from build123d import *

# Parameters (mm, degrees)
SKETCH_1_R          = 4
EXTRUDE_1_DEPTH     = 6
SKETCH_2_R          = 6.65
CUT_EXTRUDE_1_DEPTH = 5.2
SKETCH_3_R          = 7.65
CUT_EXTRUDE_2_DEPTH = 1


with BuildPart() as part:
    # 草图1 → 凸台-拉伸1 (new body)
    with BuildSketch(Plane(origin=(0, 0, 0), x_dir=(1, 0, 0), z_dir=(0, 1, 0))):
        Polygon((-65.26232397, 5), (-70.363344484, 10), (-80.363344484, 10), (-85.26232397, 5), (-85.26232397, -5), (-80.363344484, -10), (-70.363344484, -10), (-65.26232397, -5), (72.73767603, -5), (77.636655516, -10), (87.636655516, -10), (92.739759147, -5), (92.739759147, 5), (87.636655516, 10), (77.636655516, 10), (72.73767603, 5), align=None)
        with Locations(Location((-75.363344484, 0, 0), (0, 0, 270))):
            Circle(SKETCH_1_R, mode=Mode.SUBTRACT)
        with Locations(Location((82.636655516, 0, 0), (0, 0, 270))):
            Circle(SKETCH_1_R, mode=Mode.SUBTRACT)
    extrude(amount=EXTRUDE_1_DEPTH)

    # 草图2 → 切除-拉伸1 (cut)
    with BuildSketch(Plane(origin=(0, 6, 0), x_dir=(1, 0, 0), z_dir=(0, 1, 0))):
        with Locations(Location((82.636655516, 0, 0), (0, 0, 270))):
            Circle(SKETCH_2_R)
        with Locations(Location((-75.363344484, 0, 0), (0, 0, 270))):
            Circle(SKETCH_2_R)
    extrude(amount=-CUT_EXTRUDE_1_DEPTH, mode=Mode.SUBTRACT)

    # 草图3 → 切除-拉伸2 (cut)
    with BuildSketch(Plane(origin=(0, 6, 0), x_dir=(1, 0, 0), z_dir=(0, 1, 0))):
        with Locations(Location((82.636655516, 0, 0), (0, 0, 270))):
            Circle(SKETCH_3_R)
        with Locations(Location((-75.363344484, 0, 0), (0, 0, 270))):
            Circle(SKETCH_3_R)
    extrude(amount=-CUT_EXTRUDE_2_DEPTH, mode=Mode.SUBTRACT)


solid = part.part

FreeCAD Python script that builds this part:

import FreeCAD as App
import Part
import Sketcher
Q = App.Units.Quantity


def add_polygon(sketch, points):
    """Adds a closed chain of lines whose ends are joined by coincident constraints."""
    first, n = sketch.GeometryCount, len(points)
    for a, b in zip(points, points[1:] + points[:1]):
        sketch.addGeometry(Part.LineSegment(App.Vector(*a, 0), App.Vector(*b, 0)), False)
    for i in range(n):
        sketch.addConstraint(Sketcher.Constraint("Coincident", first + i, 2, first + (i + 1) % n, 1))

doc = App.newDocument("Part")
body = doc.addObject("PartDesign::Body", "Body")

sketch1 = doc.addObject("Sketcher::SketchObject", "Sketch")
body.addObject(sketch1)
sketch1.AttachmentSupport = (doc.XZ_Plane, [""])
sketch1.MapMode = "FlatFace"
add_polygon(sketch1, [(-65.262324, -5), (-70.363344, -10), (-80.363344, -10), (-85.262324, -5), (-85.262324, 5), (-80.363344, 10), (-70.363344, 10), (-65.262324, 5), (72.737676, 5), (77.636656, 10), (87.636656, 10), (92.739759, 5), (92.739759, -5), (87.636656, -10), (77.636656, -10), (72.737676, -5)])
sketch1.addGeometry(Part.Circle(App.Vector(-75.363344, 0, 0), App.Vector(0, 0, 1), 4), False)
sketch1.addGeometry(Part.Circle(App.Vector(82.636656, 0, 0), App.Vector(0, 0, 1), 4), False)
sketch1.addConstraint([
    Sketcher.Constraint("Horizontal", 1),
    Sketcher.Constraint("Vertical", 3),
    Sketcher.Constraint("Horizontal", 5),
    Sketcher.Constraint("Horizontal", 7),
    Sketcher.Constraint("Horizontal", 9),
    Sketcher.Constraint("Vertical", 11),
    Sketcher.Constraint("Horizontal", 13),
    Sketcher.Constraint("Horizontal", 15),
    Sketcher.Constraint("Equal", 16, 17),
    Sketcher.Constraint("Symmetric", 1, 2, 4, 2, -1),
    Sketcher.Constraint("Symmetric", 9, 2, 12, 2, -1),
    Sketcher.Constraint("Symmetric", 7, 2, 14, 2, -1),
    Sketcher.Constraint("PointOnObject", 16, 3, -1),
    Sketcher.Constraint("PointOnObject", 17, 3, -1),
    Sketcher.Constraint("Parallel", 4, 8),
    Sketcher.Constraint("Perpendicular", 8, 10),
    Sketcher.Constraint("Perpendicular", 2, 12),
    Sketcher.Constraint("Perpendicular", 12, 14),
    Sketcher.Constraint("Horizontal", 3, 2, 6, 2),
    Sketcher.Constraint("Horizontal", 5, 2, 8, 2),
    Sketcher.Constraint("Horizontal", 7, 2, 10, 2),
    Sketcher.Constraint("Horizontal", 2, 2, 11, 2),
    Sketcher.Constraint("Vertical", 0, 2, 5, 2),
    Sketcher.Constraint("Vertical", 6, 2, 15, 2),
    Sketcher.Constraint("Equal", 5, 9),
    Sketcher.Constraint("Equal", 13, 3),
    Sketcher.Constraint("Diameter", 16, Q("8 mm")),
    Sketcher.Constraint("DistanceX", 1, 2, 1, 1, Q("10 mm")),
    Sketcher.Constraint("DistanceX", 7, 1, 7, 2, Q("138 mm")),
    Sketcher.Constraint("Distance", 2, Q("7 mm")),
    Sketcher.Constraint("DistanceY", 0, 2, -1, 1, Q("10 mm")),
    Sketcher.Constraint("DistanceX", 16, 3, 17, 3, Q("158 mm")),
    Sketcher.Constraint("DistanceX", 16, 3, 0, 2, Q("5 mm")),
    Sketcher.Constraint("DistanceX", 3, 2, 6, 2, Q("20 mm")),
    Sketcher.Constraint("DistanceX", -1, 1, 10, 2, Q("92.739759 mm")),
])
pad1 = doc.addObject("PartDesign::Pad", "Pad")
body.addObject(pad1)
pad1.Profile = sketch1
pad1.Length = 6
pad1.Reversed = True

sketch2 = doc.addObject("Sketcher::SketchObject", "Sketch001")
body.addObject(sketch2)
sketch2.AttachmentSupport = (doc.XZ_Plane, [""])
sketch2.MapMode = "FlatFace"
sketch2.AttachmentOffset = App.Placement(App.Vector(0, 0, -6), App.Rotation())
sketch2.addGeometry([
    Part.Circle(App.Vector(82.636656, 0, 0), App.Vector(0, 0, 1), 6.65),
    Part.Circle(App.Vector(-75.363344, 0, 0), App.Vector(0, 0, 1), 6.65),
], False)
sketch2.addConstraint([
    Sketcher.Constraint("Equal", 0, 1),
    Sketcher.Constraint("PointOnObject", 0, 3, -1),
    Sketcher.Constraint("PointOnObject", 1, 3, -1),
    Sketcher.Constraint("Diameter", 0, Q("13.3 mm")),
    Sketcher.Constraint("DistanceX", 1, 3, 0, 3, Q("158 mm")),
    Sketcher.Constraint("DistanceX", -1, 1, 0, 3, Q("82.636656 mm")),
])
pocket1 = doc.addObject("PartDesign::Pocket", "Pocket")
body.addObject(pocket1)
pocket1.Profile = sketch2
pocket1.Length = 5.2
pocket1.Reversed = True

sketch3 = doc.addObject("Sketcher::SketchObject", "Sketch002")
body.addObject(sketch3)
sketch3.AttachmentSupport = (doc.XZ_Plane, [""])
sketch3.MapMode = "FlatFace"
sketch3.AttachmentOffset = App.Placement(App.Vector(0, 0, -6), App.Rotation())
sketch3.addGeometry([
    Part.Circle(App.Vector(82.636656, 0, 0), App.Vector(0, 0, 1), 7.65),
    Part.Circle(App.Vector(-75.363344, 0, 0), App.Vector(0, 0, 1), 7.65),
], False)
sketch3.addConstraint([
    Sketcher.Constraint("Equal", 0, 1),
    Sketcher.Constraint("PointOnObject", 0, 3, -1),
    Sketcher.Constraint("PointOnObject", 1, 3, -1),
    Sketcher.Constraint("Diameter", 0, Q("15.3 mm")),
    Sketcher.Constraint("DistanceX", 1, 3, 0, 3, Q("158 mm")),
    Sketcher.Constraint("DistanceX", -1, 1, 0, 3, Q("82.636656 mm")),
])
pocket2 = doc.addObject("PartDesign::Pocket", "Pocket001")
body.addObject(pocket2)
pocket2.Profile = sketch3
pocket2.Length = 1
pocket2.Reversed = True

doc.recompute()
